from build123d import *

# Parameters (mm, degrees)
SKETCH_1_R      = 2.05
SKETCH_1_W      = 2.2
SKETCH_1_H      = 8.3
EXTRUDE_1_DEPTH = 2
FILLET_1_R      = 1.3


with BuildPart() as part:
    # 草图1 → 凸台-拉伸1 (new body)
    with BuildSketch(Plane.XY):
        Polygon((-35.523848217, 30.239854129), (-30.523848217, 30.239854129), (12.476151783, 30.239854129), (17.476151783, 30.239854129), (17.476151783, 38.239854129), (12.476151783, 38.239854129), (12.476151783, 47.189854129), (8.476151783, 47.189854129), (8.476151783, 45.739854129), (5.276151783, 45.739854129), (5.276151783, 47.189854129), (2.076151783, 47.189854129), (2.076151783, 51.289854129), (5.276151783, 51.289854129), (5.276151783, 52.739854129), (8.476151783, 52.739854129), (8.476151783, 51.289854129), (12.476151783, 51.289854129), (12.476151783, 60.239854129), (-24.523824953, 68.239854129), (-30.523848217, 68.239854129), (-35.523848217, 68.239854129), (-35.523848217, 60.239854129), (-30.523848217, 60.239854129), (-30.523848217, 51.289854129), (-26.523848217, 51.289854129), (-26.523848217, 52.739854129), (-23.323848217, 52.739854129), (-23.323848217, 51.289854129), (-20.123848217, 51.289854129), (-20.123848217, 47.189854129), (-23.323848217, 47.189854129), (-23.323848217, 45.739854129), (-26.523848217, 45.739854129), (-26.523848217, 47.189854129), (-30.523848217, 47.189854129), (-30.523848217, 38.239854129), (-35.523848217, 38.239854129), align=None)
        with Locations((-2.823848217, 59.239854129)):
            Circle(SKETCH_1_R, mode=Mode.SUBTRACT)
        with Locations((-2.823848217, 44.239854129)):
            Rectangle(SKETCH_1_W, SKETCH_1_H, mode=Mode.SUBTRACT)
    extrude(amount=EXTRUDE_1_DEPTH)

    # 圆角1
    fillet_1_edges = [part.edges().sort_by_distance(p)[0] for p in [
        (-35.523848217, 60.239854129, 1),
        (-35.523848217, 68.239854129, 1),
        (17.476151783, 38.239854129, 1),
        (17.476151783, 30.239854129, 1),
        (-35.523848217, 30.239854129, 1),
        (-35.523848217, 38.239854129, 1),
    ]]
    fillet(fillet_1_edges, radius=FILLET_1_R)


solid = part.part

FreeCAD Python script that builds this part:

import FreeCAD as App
import Part
import Sketcher

V = App.Vector
Q = App.Units.Quantity


def edges_at(feature, points):
    """Names of the edges that pass closest to the given points."""
    edges = feature.Shape.Edges
    near = lambda p: min(range(len(edges)), key=lambda i: edges[i].distToShape(Part.Vertex(*p))[0])
    return sorted({f"Edge{near(p) + 1}" for p in points})

doc = App.newDocument("Part")
body = doc.addObject("PartDesign::Body", "Body")

# Sketch on XY plane
sketch1 = body.newObject("Sketcher::SketchObject", "Sketch")
sketch1.AttachmentSupport = (doc.getObject("XY_Plane"), [""])
sketch1.MapMode = "FlatFace"
sketch1.addGeometry([
    Part.LineSegment(V(-35.5, 30.2, 0), V(17.5, 30.2, 0)),  # 0
    Part.LineSegment(V(17.5, 30.2, 0), V(17.5, 38.2, 0)),  # 1
    Part.LineSegment(V(17.5, 38.2, 0), V(12.5, 38.2, 0)),  # 2
    Part.LineSegment(V(12.5, 38.2, 0), V(12.5, 47.2, 0)),  # 3
    Part.LineSegment(V(12.5, 47.2, 0), V(8.5, 47.2, 0)),  # 4
    Part.LineSegment(V(8.5, 47.2, 0), V(8.5, 45.7, 0)),  # 5
    Part.LineSegment(V(8.5, 45.7, 0), V(5.3, 45.7, 0)),  # 6
    Part.LineSegment(V(5.3, 45.7, 0), V(5.3, 47.2, 0)),  # 7
    Part.LineSegment(V(5.3, 47.2, 0), V(2.1, 47.2, 0)),  # 8
    Part.LineSegment(V(2.1, 47.2, 0), V(2.1, 51.3, 0)),  # 9
    Part.LineSegment(V(2.1, 51.3, 0), V(5.3, 51.3, 0)),  # 10
    Part.LineSegment(V(5.3, 51.3, 0), V(5.3, 52.7, 0)),  # 11
    Part.LineSegment(V(5.3, 52.7, 0), V(8.5, 52.7, 0)),  # 12
    Part.LineSegment(V(8.5, 52.7, 0), V(8.5, 51.3, 0)),  # 13
    Part.LineSegment(V(8.5, 51.3, 0), V(12.5, 51.3, 0)),  # 14
    Part.LineSegment(V(12.5, 51.3, 0), V(12.5, 60.2, 0)),  # 15
    Part.LineSegment(V(12.5, 60.2, 0), V(-24.5, 68.2, 0)),  # 16
    Part.LineSegment(V(-24.5, 68.2, 0), V(-35.5, 68.2, 0)),  # 17
    Part.LineSegment(V(-35.5, 68.2, 0), V(-35.5, 60.2, 0)),  # 18
    Part.LineSegment(V(-35.5, 60.2, 0), V(-30.5, 60.2, 0)),  # 19
    Part.LineSegment(V(-30.5, 60.2, 0), V(-30.5, 51.3, 0)),  # 20
    Part.LineSegment(V(-30.5, 51.3, 0), V(-26.5, 51.3, 0)),  # 21
    Part.LineSegment(V(-26.5, 51.3, 0), V(-26.5, 52.7, 0)),  # 22
    Part.LineSegment(V(-26.5, 52.7, 0), V(-23.3, 52.7, 0)),  # 23
    Part.LineSegment(V(-23.3, 52.7, 0), V(-23.3, 51.3, 0)),  # 24
    Part.LineSegment(V(-23.3, 51.3, 0), V(-20.1, 51.3, 0)),  # 25
    Part.LineSegment(V(-20.1, 51.3, 0), V(-20.1, 47.2, 0)),  # 26
    Part.LineSegment(V(-20.1, 47.2, 0), V(-23.3, 47.2, 0)),  # 27
    Part.LineSegment(V(-23.3, 47.2, 0), V(-23.3, 45.7, 0)),  # 28
    Part.LineSegment(V(-23.3, 45.7, 0), V(-26.5, 45.7, 0)),  # 29
    Part.LineSegment(V(-26.5, 45.7, 0), V(-26.5, 47.2, 0)),  # 30
    Part.LineSegment(V(-26.5, 47.2, 0), V(-30.5, 47.2, 0)),  # 31
    Part.LineSegment(V(-30.5, 47.2, 0), V(-30.5, 38.2, 0)),  # 32
    Part.LineSegment(V(-30.5, 38.2, 0), V(-35.5, 38.2, 0)),  # 33
    Part.LineSegment(V(-35.5, 38.2, 0), V(-35.5, 30.2, 0)),  # 34
    Part.LineSegment(V(-1.7, 40.1, 0), V(-3.9, 40.1, 0)),  # 35
    Part.LineSegment(V(-3.9, 40.1, 0), V(-3.9, 48.4, 0)),  # 36
    Part.LineSegment(V(-3.9, 48.4, 0), V(-1.7, 48.4, 0)),  # 37
    Part.LineSegment(V(-1.7, 48.4, 0), V(-1.7, 40.1, 0)),  # 38
    Part.Circle(V(-2.8, 59.2, 0), V(0, 0, 1), 2),  # 39
], False)
sketch1.addConstraint([
    Sketcher.Constraint("Coincident", 0, 2, 1, 1),
    Sketcher.Constraint("Coincident", 1, 2, 2, 1),
    Sketcher.Constraint("Coincident", 2, 2, 3, 1),
    Sketcher.Constraint("Coincident", 3, 2, 4, 1),
    Sketcher.Constraint("Coincident", 4, 2, 5, 1),
    Sketcher.Constraint("Coincident", 5, 2, 6, 1),
    Sketcher.Constraint("Coincident", 6, 2, 7, 1),
    Sketcher.Constraint("Coincident", 7, 2, 8, 1),
    Sketcher.Constraint("Coincident", 8, 2, 9, 1),
    Sketcher.Constraint("Coincident", 9, 2, 10, 1),
    Sketcher.Constraint("Coincident", 10, 2, 11, 1),
    Sketcher.Constraint("Coincident", 11, 2, 12, 1),
    Sketcher.Constraint("Coincident", 12, 2, 13, 1),
    Sketcher.Constraint("Coincident", 13, 2, 14, 1),
    Sketcher.Constraint("Coincident", 14, 2, 15, 1),
    Sketcher.Constraint("Coincident", 15, 2, 16, 1),
    Sketcher.Constraint("Coincident", 16, 2, 17, 1),
    Sketcher.Constraint("Coincident", 17, 2, 18, 1),
    Sketcher.Constraint("Coincident", 18, 2, 19, 1),
    Sketcher.Constraint("Coincident", 19, 2, 20, 1),
    Sketcher.Constraint("Coincident", 20, 2, 21, 1),
    Sketcher.Constraint("Coincident", 21, 2, 22, 1),
    Sketcher.Constraint("Coincident", 22, 2, 23, 1),
    Sketcher.Constraint("Coincident", 23, 2, 24, 1),
    Sketcher.Constraint("Coincident", 24, 2, 25, 1),
    Sketcher.Constraint("Coincident", 25, 2, 26, 1),
    Sketcher.Constraint("Coincident", 26, 2, 27, 1),
    Sketcher.Constraint("Coincident", 27, 2, 28, 1),
    Sketcher.Constraint("Coincident", 28, 2, 29, 1),
    Sketcher.Constraint("Coincident", 29, 2, 30, 1),
    Sketcher.Constraint("Coincident", 30, 2, 31, 1),
    Sketcher.Constraint("Coincident", 31, 2, 32, 1),
    Sketcher.Constraint("Coincident", 32, 2, 33, 1),
    Sketcher.Constraint("Coincident", 33, 2, 34, 1),
    Sketcher.Constraint("Coincident", 34, 2, 0, 1),
    Sketcher.Constraint("Coincident", 35, 2, 36, 1),
    Sketcher.Constraint("Coincident", 36, 2, 37, 1),
    Sketcher.Constraint("Coincident", 37, 2, 38, 1),
    Sketcher.Constraint("Coincident", 38, 2, 35, 1),
    Sketcher.Constraint("Horizontal", 0),
    Sketcher.Constraint("Vertical", 1),
    Sketcher.Constraint("Horizontal", 2),
    Sketcher.Constraint("Vertical", 3),
    Sketcher.Constraint("Horizontal", 4),
    Sketcher.Constraint("Vertical", 5),
    Sketcher.Constraint("Horizontal", 6),
    Sketcher.Constraint("Vertical", 7),
    Sketcher.Constraint("Horizontal", 8),
    Sketcher.Constraint("Vertical", 9),
    Sketcher.Constraint("Horizontal", 10),
    Sketcher.Constraint("Vertical", 11),
    Sketcher.Constraint("Horizontal", 12),
    Sketcher.Constraint("Vertical", 13),
    Sketcher.Constraint("Horizontal", 14),
    Sketcher.Constraint("Vertical", 15),
    Sketcher.Constraint("Horizontal", 17),
    Sketcher.Constraint("Vertical", 18),
    Sketcher.Constraint("Horizontal", 19),
    Sketcher.Constraint("Vertical", 20),
    Sketcher.Constraint("Horizontal", 21),
    Sketcher.Constraint("Vertical", 22),
    Sketcher.Constraint("Horizontal", 23),
    Sketcher.Constraint("Vertical", 24),
    Sketcher.Constraint("Horizontal", 25),
    Sketcher.Constraint("Vertical", 26),
    Sketcher.Constraint("Horizontal", 27),
    Sketcher.Constraint("Vertical", 28),
    Sketcher.Constraint("Horizontal", 29),
    Sketcher.Constraint("Vertical", 30),
    Sketcher.Constraint("Horizontal", 31),
    Sketcher.Constraint("Vertical", 32),
    Sketcher.Constraint("Horizontal", 33),
    Sketcher.Constraint("Vertical", 34),
    Sketcher.Constraint("Horizontal", 35),
    Sketcher.Constraint("Vertical", 36),
    Sketcher.Constraint("Horizontal", 37),
    Sketcher.Constraint("Vertical", 38),
    Sketcher.Constraint("Horizontal", 4, 2, 7, 2),
    Sketcher.Constraint("Horizontal", 10, 2, 13, 2),
    Sketcher.Constraint("Horizontal", 15, 2, 18, 2),
    Sketcher.Constraint("Horizontal", 14, 2, 20, 2),
    Sketcher.Constraint("Horizontal", 12, 2, 22, 2),
    Sketcher.Constraint("Horizontal", 21, 2, 24, 2),
    Sketcher.Constraint("Horizontal", 8, 2, 26, 2),
    Sketcher.Constraint("Horizontal", 6, 2, 28, 2),
    Sketcher.Constraint("Horizontal", 27, 2, 30, 2),
    Sketcher.Constraint("Horizontal", 2, 2, 32, 2),
    Sketcher.Constraint("Vertical", 7, 2, 10, 2),
    Sketcher.Constraint("Vertical", 5, 2, 12, 2),
    Sketcher.Constraint("Vertical", 3, 2, 14, 2),
    Sketcher.Constraint("Vertical", 24, 2, 27, 2),
    Sketcher.Constraint("Vertical", 22, 2, 29, 2),
    Sketcher.Constraint("Vertical", 20, 2, 31, 2),
    Sketcher.Constraint("Vertical", 18, 2, 33, 2),
    Sketcher.Constraint("Equal", 6, 8),
    Sketcher.Constraint("Equal", 2, 19),
    Sketcher.Constraint("Equal", 14, 21),
    Sketcher.Constraint("Equal", 12, 23),
    Sketcher.Constraint("Equal", 23, 25),
    Sketcher.Constraint("Equal", 7, 11),
    Sketcher.Constraint("Equal", 3, 15),
    Sketcher.Constraint("Equal", 1, 18),
    Sketcher.Constraint("Diameter", 39, Q("4.1 mm")),
    Sketcher.Constraint("DistanceX", 0, 1, 0, 2, Q("53 mm")),
    Sketcher.Constraint("DistanceX", 2, 2, 2, 1, Q("5 mm")),
    Sketcher.Constraint("DistanceX", 4, 2, 4, 1, Q("4 mm")),
    Sketcher.Constraint("DistanceY", 1, 1, 1, 2, Q("8 mm")),
    Sketcher.Constraint("DistanceX", 6, 2, 6, 1, Q("3.2 mm")),
    Sketcher.Constraint("DistanceX", 35, 2, 35, 1, Q("2.2 mm")),
    Sketcher.Constraint("DistanceY", 9, 1, 9, 2, Q("4.1 mm")),
    Sketcher.Constraint("DistanceY", 36, 1, 36, 2, Q("8.3 mm")),
    Sketcher.Constraint("DistanceY", 0, 2, 39, 3, Q("29 mm")),
    Sketcher.Constraint("DistanceY", 39, 3, 16, 2, Q("9 mm")),
    Sketcher.Constraint("DistanceX", 35, 2, 8, 2, Q("6 mm")),
    Sketcher.Constraint("DistanceY", 5, 2, 5, 1, Q("1.45 mm")),
    Sketcher.Constraint("DistanceX", 39, 3, 0, 2, Q("20.3 mm")),
    Sketcher.Constraint("DistanceY", 35, 2, 8, 2, Q("7.1 mm")),
    Sketcher.Constraint("DistanceX", 17, 2, 17, 1, Q("11.000023 mm")),
    Sketcher.Constraint("DistanceX", 39, 3, -1, 1, Q("2.823848 mm")),
    Sketcher.Constraint("DistanceY", -1, 1, 39, 3, Q("59.239854 mm")),
])
pad1 = body.newObject("PartDesign::Pad", "Pad")
pad1.Profile = sketch1
pad1.Length = 2
doc.recompute()

fillet = body.newObject("PartDesign::Fillet", "Fillet")
fillet.Base = (pad1, edges_at(pad1, [
    (-35.524, 60.24, 1),
    (-35.524, 68.24, 1),
    (17.476, 38.24, 1),
    (17.476, 30.24, 1),
    (-35.524, 30.24, 1),
    (-35.524, 38.24, 1),
]))
fillet.Radius = 1.3

doc.recompute()
